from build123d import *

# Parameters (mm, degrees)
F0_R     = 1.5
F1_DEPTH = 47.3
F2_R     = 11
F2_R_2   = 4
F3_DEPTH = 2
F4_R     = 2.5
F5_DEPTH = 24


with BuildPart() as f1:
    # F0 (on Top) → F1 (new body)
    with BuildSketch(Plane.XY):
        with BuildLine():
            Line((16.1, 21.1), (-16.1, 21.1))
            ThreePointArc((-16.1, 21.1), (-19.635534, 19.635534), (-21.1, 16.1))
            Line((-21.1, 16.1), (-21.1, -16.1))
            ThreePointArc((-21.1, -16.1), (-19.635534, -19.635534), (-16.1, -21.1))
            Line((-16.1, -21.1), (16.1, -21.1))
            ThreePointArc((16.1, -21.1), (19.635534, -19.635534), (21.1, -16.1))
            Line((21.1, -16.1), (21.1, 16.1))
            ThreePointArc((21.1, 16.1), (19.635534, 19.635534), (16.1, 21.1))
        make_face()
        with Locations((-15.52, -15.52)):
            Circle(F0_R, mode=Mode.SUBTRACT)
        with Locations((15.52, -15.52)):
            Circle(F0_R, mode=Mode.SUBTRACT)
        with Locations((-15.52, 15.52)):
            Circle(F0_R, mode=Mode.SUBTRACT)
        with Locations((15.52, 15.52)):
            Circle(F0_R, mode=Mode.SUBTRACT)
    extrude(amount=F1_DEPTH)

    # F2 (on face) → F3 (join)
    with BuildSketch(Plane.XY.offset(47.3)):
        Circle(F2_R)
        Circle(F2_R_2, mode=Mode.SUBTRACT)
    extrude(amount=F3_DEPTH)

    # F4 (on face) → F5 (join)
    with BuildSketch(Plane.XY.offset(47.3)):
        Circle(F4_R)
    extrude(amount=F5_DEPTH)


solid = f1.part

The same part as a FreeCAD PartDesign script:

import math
import FreeCAD as App
import Part
import Sketcher

V = App.Vector
Q = App.Units.Quantity

doc = App.newDocument("Part")
body = doc.addObject("PartDesign::Body", "Body")

sketch1 = doc.addObject("Sketcher::SketchObject", "Sketch")
body.addObject(sketch1)
sketch1.AttachmentSupport = (doc.XY_Plane, [""])
sketch1.MapMode = "FlatFace"
sketch1.addGeometry(Part.LineSegment(V(16.1, 21.1, 0), V(-16.1, 21.1, 0)), False)
sketch1.addGeometry(Part.ArcOfCircle(Part.Circle(V(-16.1, 16.1, 0), V(0, 0, 1), 5), math.radians(89.999996), math.radians(180.000004)), False)
sketch1.addGeometry(Part.LineSegment(V(-21.1, 16.1, 0), V(-21.1, -16.1, 0)), False)
sketch1.addGeometry(Part.ArcOfCircle(Part.Circle(V(-16.1, -16.1, 0), V(0, 0, 1), 5), math.radians(179.999996), math.radians(270.000004)), False)
sketch1.addGeometry(Part.LineSegment(V(-16.1, -21.1, 0), V(16.1, -21.1, 0)), False)
sketch1.addGeometry(Part.ArcOfCircle(Part.Circle(V(16.1, -16.1, 0), V(0, 0, 1), 5), math.radians(-90.000004), math.radians(0.000004)), False)
sketch1.addGeometry(Part.LineSegment(V(21.1, -16.1, 0), V(21.1, 16.1, 0)), False)
sketch1.addGeometry(Part.ArcOfCircle(Part.Circle(V(16.1, 16.1, 0), V(0, 0, 1), 5), math.radians(-0.000004), math.radians(90.000004)), False)
sketch1.addGeometry(Part.Circle(V(-15.52, -15.52, 0), V(0, 0, 1), 1.5), False)
sketch1.addGeometry(Part.Circle(V(15.52, -15.52, 0), V(0, 0, 1), 1.5), False)
sketch1.addGeometry(Part.Circle(V(-15.52, 15.52, 0), V(0, 0, 1), 1.5), False)
sketch1.addGeometry(Part.Circle(V(15.52, 15.52, 0), V(0, 0, 1), 1.5), False)
sketch1.addConstraint(Sketcher.Constraint("Tangent", 0, 2, 1, 1))
sketch1.addConstraint(Sketcher.Constraint("Tangent", 1, 2, 2, 1))
sketch1.addConstraint(Sketcher.Constraint("Tangent", 2, 2, 3, 1))
sketch1.addConstraint(Sketcher.Constraint("Tangent", 3, 2, 4, 1))
sketch1.addConstraint(Sketcher.Constraint("Tangent", 4, 2, 5, 1))
sketch1.addConstraint(Sketcher.Constraint("Tangent", 5, 2, 6, 1))
sketch1.addConstraint(Sketcher.Constraint("Tangent", 6, 2, 7, 1))
sketch1.addConstraint(Sketcher.Constraint("Tangent", 7, 2, 0, 1))
sketch1.addConstraint(Sketcher.Constraint("Horizontal", 0))
sketch1.addConstraint(Sketcher.Constraint("Vertical", 2))
sketch1.addConstraint(Sketcher.Constraint("Horizontal", 4))
sketch1.addConstraint(Sketcher.Constraint("Vertical", 6))
sketch1.addConstraint(Sketcher.Constraint("Equal", 1, 3))
sketch1.addConstraint(Sketcher.Constraint("Equal", 3, 5))
sketch1.addConstraint(Sketcher.Constraint("Equal", 5, 7))
sketch1.addConstraint(Sketcher.Constraint("Equal", 8, 9))
sketch1.addConstraint(Sketcher.Constraint("Equal", 9, 10))
sketch1.addConstraint(Sketcher.Constraint("Equal", 10, 11))
sketch1.addConstraint(Sketcher.Constraint("Symmetric", 1, 3, 5, 3, -1, 1))
sketch1.addConstraint(Sketcher.Constraint("Symmetric", 9, 3, 10, 3, -1, 1))
sketch1.addConstraint(Sketcher.Constraint("Symmetric", 8, 3, 11, 3, -1, 1))
sketch1.addConstraint(Sketcher.Constraint("Symmetric", 8, 3, 9, 3, -2))
sketch1.addConstraint(Sketcher.Constraint("Equal", 4, 2))
sketch1.addConstraint(Sketcher.Constraint("Diameter", 8, Q("3 mm")))
sketch1.addConstraint(Sketcher.Constraint("Radius", 1, Q("5 mm")))
sketch1.addConstraint(Sketcher.Constraint("DistanceX", 0, 2, 0, 1, Q("32.2 mm")))
sketch1.addConstraint(Sketcher.Constraint("DistanceX", 8, 3, -1, 1, Q("15.52 mm")))
sketch1.addConstraint(Sketcher.Constraint("DistanceY", 8, 3, -1, 1, Q("15.52 mm")))
pad1 = doc.addObject("PartDesign::Pad", "Pad")
body.addObject(pad1)
pad1.Profile = sketch1
pad1.Length = 47.3

sketch2 = doc.addObject("Sketcher::SketchObject", "Sketch001")
body.addObject(sketch2)
sketch2.AttachmentSupport = (doc.XY_Plane, [""])
sketch2.MapMode = "FlatFace"
sketch2.AttachmentOffset = App.Placement(V(0, 0, 47.3), App.Rotation())
sketch2.addGeometry(Part.Circle(V(0, 0, 0), V(0, 0, 1), 11), False)
sketch2.addGeometry(Part.Circle(V(0, 0, 0), V(0, 0, 1), 4), False)
sketch2.addConstraint(Sketcher.Constraint("Coincident", 0, 3, -1, 1))
sketch2.addConstraint(Sketcher.Constraint("Coincident", 1, 3, -1, 1))
sketch2.addConstraint(Sketcher.Constraint("Diameter", 0, Q("22 mm")))
sketch2.addConstraint(Sketcher.Constraint("Diameter", 1, Q("8 mm")))
pad2 = doc.addObject("PartDesign::Pad", "Pad001")
body.addObject(pad2)
pad2.Profile = sketch2
pad2.Length = 2

sketch3 = doc.addObject("Sketcher::SketchObject", "Sketch002")
body.addObject(sketch3)
sketch3.AttachmentSupport = (doc.XY_Plane, [""])
sketch3.MapMode = "FlatFace"
sketch3.AttachmentOffset = App.Placement(V(0, 0, 47.3), App.Rotation())
sketch3.addGeometry(Part.Circle(V(0, 0, 0), V(0, 0, 1), 2.5), False)
sketch3.addConstraint(Sketcher.Constraint("Coincident", 0, 3, -1, 1))
sketch3.addConstraint(Sketcher.Constraint("Diameter", 0, Q("5 mm")))
pad3 = doc.addObject("PartDesign::Pad", "Pad002")
body.addObject(pad3)
pad3.Profile = sketch3
pad3.Length = 24

doc.recompute()
